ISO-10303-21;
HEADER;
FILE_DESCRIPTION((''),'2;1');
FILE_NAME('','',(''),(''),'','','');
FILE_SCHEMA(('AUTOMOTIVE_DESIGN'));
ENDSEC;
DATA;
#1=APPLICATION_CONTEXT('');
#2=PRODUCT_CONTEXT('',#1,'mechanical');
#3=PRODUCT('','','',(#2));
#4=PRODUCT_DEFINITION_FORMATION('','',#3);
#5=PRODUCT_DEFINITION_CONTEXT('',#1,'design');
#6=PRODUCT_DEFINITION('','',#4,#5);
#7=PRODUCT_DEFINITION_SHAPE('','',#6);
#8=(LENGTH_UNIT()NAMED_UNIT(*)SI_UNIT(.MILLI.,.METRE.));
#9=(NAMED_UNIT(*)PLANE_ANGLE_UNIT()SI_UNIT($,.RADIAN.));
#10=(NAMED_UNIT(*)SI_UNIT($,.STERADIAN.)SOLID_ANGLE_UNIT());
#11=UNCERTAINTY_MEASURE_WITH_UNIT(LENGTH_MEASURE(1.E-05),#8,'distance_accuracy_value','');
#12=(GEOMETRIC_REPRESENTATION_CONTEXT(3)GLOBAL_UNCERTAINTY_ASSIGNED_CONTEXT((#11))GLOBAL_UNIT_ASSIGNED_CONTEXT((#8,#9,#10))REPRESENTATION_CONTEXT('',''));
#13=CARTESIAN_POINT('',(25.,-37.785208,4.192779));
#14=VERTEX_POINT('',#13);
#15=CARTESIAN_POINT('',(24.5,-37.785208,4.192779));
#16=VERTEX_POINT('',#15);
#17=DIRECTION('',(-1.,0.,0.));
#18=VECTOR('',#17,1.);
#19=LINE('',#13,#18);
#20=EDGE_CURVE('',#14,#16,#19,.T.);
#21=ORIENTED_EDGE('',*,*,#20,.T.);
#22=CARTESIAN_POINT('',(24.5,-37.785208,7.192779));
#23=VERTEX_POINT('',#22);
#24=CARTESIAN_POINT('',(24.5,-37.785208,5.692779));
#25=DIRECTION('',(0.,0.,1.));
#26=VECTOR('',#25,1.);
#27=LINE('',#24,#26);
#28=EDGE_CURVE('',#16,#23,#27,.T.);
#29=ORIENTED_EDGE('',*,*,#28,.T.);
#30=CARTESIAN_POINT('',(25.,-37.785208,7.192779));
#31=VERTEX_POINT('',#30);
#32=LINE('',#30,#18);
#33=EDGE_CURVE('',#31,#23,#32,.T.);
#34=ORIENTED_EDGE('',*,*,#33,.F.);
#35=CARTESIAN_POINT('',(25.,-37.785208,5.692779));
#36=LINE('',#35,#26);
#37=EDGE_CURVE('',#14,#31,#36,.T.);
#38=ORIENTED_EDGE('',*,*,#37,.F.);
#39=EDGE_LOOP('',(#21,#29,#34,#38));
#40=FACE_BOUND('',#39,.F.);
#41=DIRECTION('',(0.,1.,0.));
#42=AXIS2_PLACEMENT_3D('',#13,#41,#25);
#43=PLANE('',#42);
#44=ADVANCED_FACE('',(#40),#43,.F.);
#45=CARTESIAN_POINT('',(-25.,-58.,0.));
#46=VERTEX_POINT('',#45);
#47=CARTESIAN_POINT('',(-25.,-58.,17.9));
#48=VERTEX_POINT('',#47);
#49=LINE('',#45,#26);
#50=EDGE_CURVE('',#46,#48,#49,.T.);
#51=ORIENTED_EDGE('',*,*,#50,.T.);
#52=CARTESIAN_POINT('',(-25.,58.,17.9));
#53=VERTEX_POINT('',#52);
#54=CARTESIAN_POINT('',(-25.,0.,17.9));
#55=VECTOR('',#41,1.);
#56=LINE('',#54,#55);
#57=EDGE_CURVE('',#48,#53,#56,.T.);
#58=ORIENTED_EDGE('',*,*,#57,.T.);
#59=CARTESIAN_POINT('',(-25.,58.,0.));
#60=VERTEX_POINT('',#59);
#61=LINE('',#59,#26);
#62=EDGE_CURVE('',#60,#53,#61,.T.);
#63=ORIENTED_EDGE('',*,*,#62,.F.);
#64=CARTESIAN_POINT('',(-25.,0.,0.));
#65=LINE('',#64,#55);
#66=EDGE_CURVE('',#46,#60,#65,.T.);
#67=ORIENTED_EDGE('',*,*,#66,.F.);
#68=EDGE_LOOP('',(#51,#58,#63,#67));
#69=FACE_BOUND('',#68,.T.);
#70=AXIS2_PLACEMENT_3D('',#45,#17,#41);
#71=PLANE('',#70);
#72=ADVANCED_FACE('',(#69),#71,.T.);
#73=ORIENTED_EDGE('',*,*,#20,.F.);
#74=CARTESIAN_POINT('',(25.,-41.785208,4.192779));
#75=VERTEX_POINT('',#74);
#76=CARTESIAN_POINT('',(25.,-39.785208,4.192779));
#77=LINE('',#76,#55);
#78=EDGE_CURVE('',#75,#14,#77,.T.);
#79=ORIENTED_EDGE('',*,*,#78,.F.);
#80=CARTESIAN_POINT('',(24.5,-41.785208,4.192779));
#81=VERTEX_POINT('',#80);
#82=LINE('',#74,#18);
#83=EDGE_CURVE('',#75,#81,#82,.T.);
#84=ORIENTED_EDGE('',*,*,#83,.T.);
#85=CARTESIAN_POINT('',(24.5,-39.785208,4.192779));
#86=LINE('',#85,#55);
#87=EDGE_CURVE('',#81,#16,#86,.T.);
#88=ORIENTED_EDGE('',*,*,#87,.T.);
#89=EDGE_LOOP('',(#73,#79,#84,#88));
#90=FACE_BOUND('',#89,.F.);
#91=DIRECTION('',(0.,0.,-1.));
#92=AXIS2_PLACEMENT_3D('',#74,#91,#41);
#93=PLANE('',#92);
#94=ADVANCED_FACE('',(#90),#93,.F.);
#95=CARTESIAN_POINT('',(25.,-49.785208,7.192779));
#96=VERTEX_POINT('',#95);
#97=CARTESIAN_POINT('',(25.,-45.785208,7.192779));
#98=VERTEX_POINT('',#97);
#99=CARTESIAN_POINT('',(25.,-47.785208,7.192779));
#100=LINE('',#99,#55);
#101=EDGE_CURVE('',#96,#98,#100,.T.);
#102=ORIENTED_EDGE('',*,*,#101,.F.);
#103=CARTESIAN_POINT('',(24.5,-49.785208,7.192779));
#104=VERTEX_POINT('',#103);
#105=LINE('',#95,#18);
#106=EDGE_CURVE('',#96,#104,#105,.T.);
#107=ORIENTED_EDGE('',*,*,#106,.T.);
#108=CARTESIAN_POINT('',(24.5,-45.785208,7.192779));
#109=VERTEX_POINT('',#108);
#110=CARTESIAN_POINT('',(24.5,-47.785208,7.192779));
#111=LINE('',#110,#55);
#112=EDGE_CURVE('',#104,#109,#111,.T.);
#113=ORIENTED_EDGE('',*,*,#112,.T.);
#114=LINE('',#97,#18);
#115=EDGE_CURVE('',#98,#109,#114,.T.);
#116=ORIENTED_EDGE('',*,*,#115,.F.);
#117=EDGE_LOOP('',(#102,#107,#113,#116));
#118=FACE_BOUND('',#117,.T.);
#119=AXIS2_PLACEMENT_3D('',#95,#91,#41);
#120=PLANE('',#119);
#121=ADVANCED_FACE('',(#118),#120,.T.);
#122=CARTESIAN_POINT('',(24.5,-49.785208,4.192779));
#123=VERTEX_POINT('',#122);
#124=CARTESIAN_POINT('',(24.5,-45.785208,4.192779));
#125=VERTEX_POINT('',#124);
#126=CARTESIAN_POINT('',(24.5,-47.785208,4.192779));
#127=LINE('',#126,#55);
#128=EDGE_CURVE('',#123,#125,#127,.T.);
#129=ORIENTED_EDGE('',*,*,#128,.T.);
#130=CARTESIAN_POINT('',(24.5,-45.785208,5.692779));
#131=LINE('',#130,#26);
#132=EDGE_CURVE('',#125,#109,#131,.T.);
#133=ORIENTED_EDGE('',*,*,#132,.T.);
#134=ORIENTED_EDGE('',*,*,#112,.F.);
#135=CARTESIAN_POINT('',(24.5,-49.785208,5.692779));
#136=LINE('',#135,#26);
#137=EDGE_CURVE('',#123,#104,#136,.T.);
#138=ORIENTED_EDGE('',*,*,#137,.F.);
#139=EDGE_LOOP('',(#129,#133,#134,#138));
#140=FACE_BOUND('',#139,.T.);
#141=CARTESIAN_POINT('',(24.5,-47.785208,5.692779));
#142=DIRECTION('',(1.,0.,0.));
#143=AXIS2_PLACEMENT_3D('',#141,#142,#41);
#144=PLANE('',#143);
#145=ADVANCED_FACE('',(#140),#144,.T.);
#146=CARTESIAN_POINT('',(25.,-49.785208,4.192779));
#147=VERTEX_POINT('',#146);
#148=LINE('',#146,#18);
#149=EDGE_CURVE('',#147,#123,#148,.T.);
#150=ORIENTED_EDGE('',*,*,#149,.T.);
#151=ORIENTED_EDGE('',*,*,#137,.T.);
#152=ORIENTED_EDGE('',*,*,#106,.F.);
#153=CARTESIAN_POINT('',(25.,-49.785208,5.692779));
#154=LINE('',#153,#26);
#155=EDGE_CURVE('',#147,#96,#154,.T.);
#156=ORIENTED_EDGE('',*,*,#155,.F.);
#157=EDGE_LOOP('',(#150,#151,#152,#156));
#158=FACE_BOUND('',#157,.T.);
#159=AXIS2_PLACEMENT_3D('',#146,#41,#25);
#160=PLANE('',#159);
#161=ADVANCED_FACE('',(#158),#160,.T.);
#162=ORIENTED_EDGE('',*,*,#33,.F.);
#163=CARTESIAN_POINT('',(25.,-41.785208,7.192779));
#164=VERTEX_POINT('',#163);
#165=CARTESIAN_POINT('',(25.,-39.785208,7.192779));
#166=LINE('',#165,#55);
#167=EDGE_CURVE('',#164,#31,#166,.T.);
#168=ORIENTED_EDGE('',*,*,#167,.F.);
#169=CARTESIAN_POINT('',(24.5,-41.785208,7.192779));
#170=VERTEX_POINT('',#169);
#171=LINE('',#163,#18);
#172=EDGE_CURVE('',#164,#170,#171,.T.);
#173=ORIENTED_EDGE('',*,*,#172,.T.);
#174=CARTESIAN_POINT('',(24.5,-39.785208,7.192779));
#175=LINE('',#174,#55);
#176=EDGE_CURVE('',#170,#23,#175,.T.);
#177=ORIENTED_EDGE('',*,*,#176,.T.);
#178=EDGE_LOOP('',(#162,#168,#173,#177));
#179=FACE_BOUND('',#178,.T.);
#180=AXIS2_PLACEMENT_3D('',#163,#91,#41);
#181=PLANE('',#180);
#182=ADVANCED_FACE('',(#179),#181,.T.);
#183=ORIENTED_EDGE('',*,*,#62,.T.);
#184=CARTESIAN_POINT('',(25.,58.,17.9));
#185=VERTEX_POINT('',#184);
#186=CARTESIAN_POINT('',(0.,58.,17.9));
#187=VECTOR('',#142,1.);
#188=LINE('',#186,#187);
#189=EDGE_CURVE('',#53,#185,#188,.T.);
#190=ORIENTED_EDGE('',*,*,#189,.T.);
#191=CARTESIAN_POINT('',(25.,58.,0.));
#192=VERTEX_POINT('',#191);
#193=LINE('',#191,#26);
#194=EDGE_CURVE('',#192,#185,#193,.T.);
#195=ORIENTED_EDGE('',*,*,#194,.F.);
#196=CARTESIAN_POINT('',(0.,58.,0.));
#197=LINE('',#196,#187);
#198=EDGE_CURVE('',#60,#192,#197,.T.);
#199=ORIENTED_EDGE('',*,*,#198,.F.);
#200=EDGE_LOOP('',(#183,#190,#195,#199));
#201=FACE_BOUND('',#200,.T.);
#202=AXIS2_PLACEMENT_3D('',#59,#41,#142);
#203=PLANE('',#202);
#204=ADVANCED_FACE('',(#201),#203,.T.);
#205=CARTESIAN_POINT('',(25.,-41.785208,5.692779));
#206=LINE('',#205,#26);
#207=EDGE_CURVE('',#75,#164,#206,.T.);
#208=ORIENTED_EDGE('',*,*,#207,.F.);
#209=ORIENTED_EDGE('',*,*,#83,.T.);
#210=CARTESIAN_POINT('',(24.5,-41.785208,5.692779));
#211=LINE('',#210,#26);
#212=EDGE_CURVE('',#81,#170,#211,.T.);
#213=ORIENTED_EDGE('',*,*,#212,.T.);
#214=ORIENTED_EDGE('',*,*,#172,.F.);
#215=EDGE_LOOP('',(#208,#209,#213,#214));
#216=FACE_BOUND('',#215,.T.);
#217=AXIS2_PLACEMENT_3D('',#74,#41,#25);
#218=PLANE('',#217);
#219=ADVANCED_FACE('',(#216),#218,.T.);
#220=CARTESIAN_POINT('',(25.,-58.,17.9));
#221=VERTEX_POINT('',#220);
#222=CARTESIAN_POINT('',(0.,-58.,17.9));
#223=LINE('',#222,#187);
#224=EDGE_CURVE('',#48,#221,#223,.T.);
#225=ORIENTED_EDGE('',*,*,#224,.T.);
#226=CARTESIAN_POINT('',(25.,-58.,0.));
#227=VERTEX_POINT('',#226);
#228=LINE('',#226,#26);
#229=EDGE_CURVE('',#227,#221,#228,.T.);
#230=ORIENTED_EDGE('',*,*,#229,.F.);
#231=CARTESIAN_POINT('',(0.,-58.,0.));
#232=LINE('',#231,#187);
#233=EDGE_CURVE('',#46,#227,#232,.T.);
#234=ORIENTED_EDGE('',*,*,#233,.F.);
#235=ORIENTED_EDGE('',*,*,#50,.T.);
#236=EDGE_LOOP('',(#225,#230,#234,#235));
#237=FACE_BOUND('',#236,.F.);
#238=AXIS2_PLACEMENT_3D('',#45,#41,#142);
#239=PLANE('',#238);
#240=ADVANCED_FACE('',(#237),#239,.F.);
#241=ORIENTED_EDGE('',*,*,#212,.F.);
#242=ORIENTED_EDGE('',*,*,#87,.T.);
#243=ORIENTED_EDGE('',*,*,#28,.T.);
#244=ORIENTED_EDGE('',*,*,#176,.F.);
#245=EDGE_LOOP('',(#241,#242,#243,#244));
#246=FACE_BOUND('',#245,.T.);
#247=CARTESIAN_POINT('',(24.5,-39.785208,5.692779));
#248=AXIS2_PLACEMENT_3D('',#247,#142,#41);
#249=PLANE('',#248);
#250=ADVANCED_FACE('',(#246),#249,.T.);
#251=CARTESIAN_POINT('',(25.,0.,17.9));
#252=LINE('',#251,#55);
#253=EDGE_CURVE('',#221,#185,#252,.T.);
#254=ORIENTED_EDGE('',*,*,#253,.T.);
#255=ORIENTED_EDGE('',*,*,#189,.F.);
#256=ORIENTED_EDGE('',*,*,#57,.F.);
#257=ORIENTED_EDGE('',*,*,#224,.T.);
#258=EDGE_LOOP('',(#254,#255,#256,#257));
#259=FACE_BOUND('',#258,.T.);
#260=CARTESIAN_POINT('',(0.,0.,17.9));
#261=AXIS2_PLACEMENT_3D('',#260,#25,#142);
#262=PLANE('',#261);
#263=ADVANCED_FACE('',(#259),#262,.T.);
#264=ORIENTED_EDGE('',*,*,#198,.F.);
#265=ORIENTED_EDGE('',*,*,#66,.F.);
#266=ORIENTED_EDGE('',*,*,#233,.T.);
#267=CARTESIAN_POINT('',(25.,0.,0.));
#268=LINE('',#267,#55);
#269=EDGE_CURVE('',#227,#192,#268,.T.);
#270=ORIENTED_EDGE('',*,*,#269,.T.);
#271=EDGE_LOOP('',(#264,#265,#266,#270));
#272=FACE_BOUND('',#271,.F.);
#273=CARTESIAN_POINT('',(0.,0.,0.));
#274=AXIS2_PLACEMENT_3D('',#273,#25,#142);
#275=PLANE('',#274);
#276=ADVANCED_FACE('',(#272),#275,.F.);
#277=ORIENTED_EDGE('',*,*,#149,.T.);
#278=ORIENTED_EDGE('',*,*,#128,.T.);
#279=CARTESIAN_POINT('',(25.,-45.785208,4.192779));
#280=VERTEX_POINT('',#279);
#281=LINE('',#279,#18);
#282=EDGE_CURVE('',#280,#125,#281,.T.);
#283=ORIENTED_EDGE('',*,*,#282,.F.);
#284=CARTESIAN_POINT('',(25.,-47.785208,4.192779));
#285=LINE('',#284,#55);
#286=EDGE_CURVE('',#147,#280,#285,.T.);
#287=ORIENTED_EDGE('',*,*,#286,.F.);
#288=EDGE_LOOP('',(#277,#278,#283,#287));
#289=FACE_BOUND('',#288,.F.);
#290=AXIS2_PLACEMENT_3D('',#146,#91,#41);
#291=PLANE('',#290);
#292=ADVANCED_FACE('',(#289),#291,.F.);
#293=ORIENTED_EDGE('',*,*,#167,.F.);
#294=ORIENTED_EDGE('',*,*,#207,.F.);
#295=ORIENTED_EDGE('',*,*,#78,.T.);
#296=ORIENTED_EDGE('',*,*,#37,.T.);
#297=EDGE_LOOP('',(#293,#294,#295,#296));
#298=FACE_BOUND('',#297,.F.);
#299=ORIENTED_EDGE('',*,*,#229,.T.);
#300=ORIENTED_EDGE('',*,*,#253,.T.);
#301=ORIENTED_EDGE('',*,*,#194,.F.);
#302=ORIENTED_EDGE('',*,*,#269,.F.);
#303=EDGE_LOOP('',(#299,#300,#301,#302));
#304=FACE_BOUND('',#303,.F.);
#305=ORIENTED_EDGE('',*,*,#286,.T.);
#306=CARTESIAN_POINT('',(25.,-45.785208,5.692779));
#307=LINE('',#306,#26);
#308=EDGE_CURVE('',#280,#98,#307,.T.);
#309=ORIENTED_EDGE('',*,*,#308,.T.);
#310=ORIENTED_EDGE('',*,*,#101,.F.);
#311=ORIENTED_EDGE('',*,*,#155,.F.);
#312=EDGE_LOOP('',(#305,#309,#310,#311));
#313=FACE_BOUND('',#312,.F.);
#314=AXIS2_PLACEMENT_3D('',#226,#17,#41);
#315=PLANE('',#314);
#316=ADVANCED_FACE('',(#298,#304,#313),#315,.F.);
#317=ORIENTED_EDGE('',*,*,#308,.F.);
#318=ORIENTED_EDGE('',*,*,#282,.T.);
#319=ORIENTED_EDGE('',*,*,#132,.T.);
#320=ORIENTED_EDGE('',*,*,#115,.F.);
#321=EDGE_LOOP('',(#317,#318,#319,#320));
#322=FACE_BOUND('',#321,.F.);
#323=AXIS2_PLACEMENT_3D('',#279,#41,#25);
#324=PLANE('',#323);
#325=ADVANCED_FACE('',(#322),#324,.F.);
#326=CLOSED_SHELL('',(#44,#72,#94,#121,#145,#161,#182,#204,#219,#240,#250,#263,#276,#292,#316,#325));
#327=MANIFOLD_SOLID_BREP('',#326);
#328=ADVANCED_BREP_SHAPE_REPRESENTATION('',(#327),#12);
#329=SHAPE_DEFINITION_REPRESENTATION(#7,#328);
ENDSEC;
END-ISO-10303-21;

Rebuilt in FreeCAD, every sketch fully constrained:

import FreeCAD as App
import Part
import Sketcher

V = App.Vector
Q = App.Units.Quantity


def add_polygon(sketch, points):
    """Adds a closed chain of lines whose ends are joined by coincident constraints."""
    first, n = sketch.GeometryCount, len(points)
    for a, b in zip(points, points[1:] + points[:1]):
        sketch.addGeometry(Part.LineSegment(App.Vector(*a, 0), App.Vector(*b, 0)), False)
    for i in range(n):
        sketch.addConstraint(Sketcher.Constraint("Coincident", first + i, 2, first + (i + 1) % n, 1))

doc = App.newDocument("Part")
body = doc.addObject("PartDesign::Body", "Body")

sketch1 = body.newObject("Sketcher::SketchObject", "Sketch")
sketch1.AttachmentSupport = (doc.getObject("XY_Plane"), [""])
sketch1.MapMode = "FlatFace"
add_polygon(sketch1, [(-25, 58), (-25, -58), (25, -58), (25, 58)])
sketch1.addConstraint(Sketcher.Constraint("Vertical", 0))
sketch1.addConstraint(Sketcher.Constraint("Horizontal", 1))
sketch1.addConstraint(Sketcher.Constraint("Vertical", 2))
sketch1.addConstraint(Sketcher.Constraint("Horizontal", 3))
sketch1.addConstraint(Sketcher.Constraint("Symmetric", 0, 2, 2, 2, -1, 1))
sketch1.addConstraint(Sketcher.Constraint("DistanceX", 1, 1, 1, 2, Q("50 mm")))
sketch1.addConstraint(Sketcher.Constraint("DistanceY", 0, 2, 0, 1, Q("116 mm")))
pad1 = body.newObject("PartDesign::Pad", "Pad")
pad1.Profile = sketch1
pad1.Length = 17.9

sketch2 = body.newObject("Sketcher::SketchObject", "Sketch001")
sketch2.AttachmentSupport = (doc.getObject("YZ_Plane"), [""])
sketch2.MapMode = "FlatFace"
sketch2.AttachmentOffset = App.Placement(V(0, 0, 25), App.Rotation())
add_polygon(sketch2, [(-49.8, 7.2), (-49.8, 4.2), (-45.8, 4.2), (-45.8, 7.2)])
add_polygon(sketch2, [(-41.8, 7.2), (-41.8, 4.2), (-37.8, 4.2), (-37.8, 7.2)])
sketch2.addConstraint(Sketcher.Constraint("Vertical", 0))
sketch2.addConstraint(Sketcher.Constraint("Horizontal", 1))
sketch2.addConstraint(Sketcher.Constraint("Vertical", 2))
sketch2.addConstraint(Sketcher.Constraint("Horizontal", 3))
sketch2.addConstraint(Sketcher.Constraint("Vertical", 4))
sketch2.addConstraint(Sketcher.Constraint("Horizontal", 5))
sketch2.addConstraint(Sketcher.Constraint("Vertical", 6))
sketch2.addConstraint(Sketcher.Constraint("Horizontal", 7))
sketch2.addConstraint(Sketcher.Constraint("Horizontal", 1, 2, 4, 2))
sketch2.addConstraint(Sketcher.Constraint("Horizontal", 3, 2, 6, 2))
sketch2.addConstraint(Sketcher.Constraint("Equal", 3, 5))
sketch2.addConstraint(Sketcher.Constraint("DistanceX", 1, 1, 1, 2, Q("4 mm")))
sketch2.addConstraint(Sketcher.Constraint("DistanceY", 0, 2, 0, 1, Q("3 mm")))
sketch2.addConstraint(Sketcher.Constraint("DistanceX", 1, 2, 4, 2, Q("4 mm")))
sketch2.addConstraint(Sketcher.Constraint("DistanceY", -1, 1, 0, 2, Q("4.192779 mm")))
sketch2.addConstraint(Sketcher.Constraint("DistanceX", 0, 2, -1, 1, Q("49.785208 mm")))
pocket1 = body.newObject("PartDesign::Pocket", "Pocket")
pocket1.Profile = sketch2
pocket1.Length = 0.5

doc.recompute()
